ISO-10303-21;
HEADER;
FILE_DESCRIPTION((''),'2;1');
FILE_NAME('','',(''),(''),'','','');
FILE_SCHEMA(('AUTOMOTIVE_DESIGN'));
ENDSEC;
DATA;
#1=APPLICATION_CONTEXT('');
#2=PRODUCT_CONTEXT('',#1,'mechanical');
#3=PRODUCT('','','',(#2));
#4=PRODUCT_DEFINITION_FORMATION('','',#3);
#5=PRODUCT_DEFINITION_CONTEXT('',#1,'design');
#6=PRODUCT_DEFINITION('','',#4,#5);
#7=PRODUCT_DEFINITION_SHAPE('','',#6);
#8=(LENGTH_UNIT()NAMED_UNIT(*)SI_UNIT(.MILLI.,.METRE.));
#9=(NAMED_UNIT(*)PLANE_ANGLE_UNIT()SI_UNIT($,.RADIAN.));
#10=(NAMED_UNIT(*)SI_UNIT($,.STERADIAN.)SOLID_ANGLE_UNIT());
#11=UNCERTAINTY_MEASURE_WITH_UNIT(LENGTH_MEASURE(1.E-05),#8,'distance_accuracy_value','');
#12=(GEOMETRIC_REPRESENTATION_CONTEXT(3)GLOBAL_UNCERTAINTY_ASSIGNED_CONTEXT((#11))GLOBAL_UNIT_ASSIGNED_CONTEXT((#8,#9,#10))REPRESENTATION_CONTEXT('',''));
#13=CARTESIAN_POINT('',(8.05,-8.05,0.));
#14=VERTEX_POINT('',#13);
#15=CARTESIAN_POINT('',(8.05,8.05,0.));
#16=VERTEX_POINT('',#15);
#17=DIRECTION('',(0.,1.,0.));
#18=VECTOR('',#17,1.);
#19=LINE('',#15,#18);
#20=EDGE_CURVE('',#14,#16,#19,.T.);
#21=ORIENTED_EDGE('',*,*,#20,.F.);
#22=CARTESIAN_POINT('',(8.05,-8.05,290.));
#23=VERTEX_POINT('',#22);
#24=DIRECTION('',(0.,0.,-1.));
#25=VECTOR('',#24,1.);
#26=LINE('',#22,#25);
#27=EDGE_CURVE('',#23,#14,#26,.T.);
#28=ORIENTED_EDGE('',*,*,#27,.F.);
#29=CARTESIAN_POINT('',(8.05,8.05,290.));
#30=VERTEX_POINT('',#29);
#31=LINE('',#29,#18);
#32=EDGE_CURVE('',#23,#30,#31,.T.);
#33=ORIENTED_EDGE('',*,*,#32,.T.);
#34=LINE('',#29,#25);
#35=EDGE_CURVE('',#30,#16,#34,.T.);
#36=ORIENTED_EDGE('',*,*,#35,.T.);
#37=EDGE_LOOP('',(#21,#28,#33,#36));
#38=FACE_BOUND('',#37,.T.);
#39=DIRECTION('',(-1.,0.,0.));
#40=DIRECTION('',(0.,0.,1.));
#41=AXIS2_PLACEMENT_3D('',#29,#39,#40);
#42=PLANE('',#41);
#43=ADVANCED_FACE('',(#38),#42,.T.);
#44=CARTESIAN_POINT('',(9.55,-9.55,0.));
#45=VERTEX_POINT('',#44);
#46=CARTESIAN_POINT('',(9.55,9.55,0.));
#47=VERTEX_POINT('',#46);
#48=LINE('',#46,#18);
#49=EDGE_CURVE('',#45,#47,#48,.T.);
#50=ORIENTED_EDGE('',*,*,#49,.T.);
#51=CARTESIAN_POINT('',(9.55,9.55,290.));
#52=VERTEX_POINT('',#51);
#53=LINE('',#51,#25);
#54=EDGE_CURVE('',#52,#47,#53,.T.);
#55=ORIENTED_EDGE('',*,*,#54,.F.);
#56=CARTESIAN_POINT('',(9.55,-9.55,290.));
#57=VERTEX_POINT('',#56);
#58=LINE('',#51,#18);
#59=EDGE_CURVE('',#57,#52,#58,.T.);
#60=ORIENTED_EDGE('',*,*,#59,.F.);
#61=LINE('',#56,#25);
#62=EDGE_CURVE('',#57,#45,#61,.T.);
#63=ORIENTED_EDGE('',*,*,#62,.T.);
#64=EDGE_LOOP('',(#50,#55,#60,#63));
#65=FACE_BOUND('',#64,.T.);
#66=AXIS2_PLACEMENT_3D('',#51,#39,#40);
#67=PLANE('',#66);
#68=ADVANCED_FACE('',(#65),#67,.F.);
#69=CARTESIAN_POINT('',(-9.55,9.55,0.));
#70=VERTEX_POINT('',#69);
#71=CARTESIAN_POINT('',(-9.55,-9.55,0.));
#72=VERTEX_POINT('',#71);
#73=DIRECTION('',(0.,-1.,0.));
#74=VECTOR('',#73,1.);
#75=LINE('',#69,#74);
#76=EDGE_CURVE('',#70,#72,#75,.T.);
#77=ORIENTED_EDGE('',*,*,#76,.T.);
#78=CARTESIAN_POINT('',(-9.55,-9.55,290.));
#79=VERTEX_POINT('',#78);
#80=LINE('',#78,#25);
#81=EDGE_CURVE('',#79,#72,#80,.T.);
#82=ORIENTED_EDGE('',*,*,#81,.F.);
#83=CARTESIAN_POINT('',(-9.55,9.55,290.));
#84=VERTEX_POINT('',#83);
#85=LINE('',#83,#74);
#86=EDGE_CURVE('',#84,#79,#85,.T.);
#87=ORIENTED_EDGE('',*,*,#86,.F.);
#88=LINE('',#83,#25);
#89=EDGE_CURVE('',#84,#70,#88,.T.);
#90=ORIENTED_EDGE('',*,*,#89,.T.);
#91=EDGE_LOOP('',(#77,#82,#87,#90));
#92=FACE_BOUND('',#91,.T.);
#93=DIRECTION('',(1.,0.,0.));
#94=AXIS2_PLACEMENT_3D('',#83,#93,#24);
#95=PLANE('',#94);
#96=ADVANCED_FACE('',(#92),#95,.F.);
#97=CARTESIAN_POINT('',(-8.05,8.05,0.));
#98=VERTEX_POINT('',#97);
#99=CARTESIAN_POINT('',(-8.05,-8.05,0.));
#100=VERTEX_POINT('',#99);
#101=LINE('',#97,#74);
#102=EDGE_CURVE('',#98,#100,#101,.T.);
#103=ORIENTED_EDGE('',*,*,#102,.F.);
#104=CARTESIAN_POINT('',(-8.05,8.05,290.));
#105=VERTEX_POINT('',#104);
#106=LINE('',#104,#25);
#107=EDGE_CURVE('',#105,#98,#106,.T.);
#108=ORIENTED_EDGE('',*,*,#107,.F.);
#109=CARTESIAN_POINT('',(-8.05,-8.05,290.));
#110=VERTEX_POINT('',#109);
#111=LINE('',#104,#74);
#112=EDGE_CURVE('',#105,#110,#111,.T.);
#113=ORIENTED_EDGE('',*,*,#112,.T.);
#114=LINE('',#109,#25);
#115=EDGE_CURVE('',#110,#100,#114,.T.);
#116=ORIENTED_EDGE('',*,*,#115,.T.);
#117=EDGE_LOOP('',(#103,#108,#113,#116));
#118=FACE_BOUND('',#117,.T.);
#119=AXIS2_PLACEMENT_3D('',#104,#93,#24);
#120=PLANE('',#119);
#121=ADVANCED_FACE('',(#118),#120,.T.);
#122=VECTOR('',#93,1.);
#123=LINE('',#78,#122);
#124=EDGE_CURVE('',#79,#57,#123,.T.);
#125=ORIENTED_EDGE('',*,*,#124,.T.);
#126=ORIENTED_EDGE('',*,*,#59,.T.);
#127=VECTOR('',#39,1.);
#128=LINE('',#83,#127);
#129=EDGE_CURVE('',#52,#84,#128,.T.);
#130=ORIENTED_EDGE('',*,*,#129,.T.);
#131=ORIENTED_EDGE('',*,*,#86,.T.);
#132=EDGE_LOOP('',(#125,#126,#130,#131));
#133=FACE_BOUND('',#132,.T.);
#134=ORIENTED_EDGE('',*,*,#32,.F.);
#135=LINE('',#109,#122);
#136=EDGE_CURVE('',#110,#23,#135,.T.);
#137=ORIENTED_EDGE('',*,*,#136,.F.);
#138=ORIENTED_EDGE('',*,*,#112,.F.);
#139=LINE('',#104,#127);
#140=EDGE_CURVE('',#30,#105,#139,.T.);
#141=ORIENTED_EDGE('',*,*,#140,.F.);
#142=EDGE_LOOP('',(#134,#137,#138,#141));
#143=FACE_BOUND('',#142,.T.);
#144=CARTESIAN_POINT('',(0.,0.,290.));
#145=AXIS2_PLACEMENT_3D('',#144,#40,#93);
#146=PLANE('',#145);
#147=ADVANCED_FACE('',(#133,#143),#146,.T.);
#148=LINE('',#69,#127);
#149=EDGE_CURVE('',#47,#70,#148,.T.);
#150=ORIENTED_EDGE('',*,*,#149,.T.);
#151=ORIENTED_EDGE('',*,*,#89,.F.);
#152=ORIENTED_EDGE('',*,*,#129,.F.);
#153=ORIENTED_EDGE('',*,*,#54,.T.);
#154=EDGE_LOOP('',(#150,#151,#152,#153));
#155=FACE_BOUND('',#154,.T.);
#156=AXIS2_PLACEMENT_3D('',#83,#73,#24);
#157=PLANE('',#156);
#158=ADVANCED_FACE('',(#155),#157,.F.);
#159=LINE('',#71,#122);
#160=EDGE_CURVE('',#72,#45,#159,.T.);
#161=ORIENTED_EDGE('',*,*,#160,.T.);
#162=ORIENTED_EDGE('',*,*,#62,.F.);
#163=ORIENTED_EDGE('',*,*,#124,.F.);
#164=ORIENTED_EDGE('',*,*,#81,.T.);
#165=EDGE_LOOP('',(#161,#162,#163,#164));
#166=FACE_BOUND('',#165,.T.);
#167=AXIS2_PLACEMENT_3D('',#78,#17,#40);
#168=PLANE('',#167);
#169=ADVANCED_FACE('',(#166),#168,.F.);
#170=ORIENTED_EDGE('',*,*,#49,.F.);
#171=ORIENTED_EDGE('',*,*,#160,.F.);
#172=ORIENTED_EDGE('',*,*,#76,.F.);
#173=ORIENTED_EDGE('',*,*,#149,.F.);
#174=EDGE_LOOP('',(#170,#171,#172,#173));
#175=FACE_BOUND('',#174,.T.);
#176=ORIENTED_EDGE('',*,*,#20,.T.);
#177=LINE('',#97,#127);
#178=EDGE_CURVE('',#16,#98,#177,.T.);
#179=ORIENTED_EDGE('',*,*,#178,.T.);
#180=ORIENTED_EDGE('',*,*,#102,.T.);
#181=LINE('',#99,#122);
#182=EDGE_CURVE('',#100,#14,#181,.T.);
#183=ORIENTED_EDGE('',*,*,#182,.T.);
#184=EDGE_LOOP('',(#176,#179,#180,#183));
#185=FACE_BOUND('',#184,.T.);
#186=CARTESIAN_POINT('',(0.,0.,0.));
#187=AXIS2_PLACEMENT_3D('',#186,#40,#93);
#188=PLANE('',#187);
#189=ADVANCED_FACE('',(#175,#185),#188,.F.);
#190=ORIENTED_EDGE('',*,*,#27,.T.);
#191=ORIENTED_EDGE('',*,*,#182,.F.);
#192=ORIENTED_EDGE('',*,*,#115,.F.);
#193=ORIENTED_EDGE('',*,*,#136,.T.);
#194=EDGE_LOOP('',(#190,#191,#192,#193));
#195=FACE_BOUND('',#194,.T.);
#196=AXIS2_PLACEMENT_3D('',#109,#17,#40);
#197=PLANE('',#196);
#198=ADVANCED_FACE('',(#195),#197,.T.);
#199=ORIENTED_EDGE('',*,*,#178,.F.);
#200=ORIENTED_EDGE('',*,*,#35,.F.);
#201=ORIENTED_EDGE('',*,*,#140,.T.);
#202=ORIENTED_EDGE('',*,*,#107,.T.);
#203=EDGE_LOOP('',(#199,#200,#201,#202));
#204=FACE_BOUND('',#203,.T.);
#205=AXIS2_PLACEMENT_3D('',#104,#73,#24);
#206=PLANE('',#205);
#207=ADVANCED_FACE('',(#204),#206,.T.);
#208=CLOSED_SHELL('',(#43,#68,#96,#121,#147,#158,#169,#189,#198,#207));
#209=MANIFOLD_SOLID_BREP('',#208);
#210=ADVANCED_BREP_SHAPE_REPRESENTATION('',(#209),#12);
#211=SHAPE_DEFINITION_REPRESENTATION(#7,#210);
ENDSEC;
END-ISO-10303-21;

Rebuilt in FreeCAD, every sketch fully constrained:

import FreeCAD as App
import Part
import Sketcher


def add_polygon(sketch, points):
    """Adds a closed chain of lines whose ends are joined by coincident constraints."""
    first, n = sketch.GeometryCount, len(points)
    for a, b in zip(points, points[1:] + points[:1]):
        sketch.addGeometry(Part.LineSegment(App.Vector(*a, 0), App.Vector(*b, 0)), False)
    for i in range(n):
        sketch.addConstraint(Sketcher.Constraint("Coincident", first + i, 2, first + (i + 1) % n, 1))

doc = App.newDocument("Part")
body = doc.addObject("PartDesign::Body", "Body")

# Sketch on XY plane
sketch1 = doc.addObject("Sketcher::SketchObject", "Sketch")
body.addObject(sketch1)
sketch1.AttachmentSupport = (doc.XY_Plane, [""])
sketch1.MapMode = "FlatFace"
add_polygon(sketch1, [(-10, 10), (-10, -10), (10, -10), (10, 10)])  # lines 0-3
add_polygon(sketch1, [(8, -8), (-8, -8), (-8, 8), (8, 8)])  # lines 4-7
sketch1.addConstraint(Sketcher.Constraint("Vertical", 0))
sketch1.addConstraint(Sketcher.Constraint("Horizontal", 1))
sketch1.addConstraint(Sketcher.Constraint("Vertical", 2))
sketch1.addConstraint(Sketcher.Constraint("Horizontal", 3))
sketch1.addConstraint(Sketcher.Constraint("Horizontal", 4))
sketch1.addConstraint(Sketcher.Constraint("Vertical", 5))
sketch1.addConstraint(Sketcher.Constraint("Horizontal", 6))
sketch1.addConstraint(Sketcher.Constraint("Vertical", 7))
sketch1.addConstraint(Sketcher.Constraint("Symmetric", 0, 2, 2, 2, -1, 1))
sketch1.addConstraint(Sketcher.Constraint("Symmetric", 4, 2, 6, 2, -1, 1))
sketch1.addConstraint(Sketcher.Constraint("Equal", 3, 0))
sketch1.addConstraint(Sketcher.Constraint("Equal", 6, 5))
sketch1.addConstraint(Sketcher.Constraint("DistanceX", 1, 1, 1, 2, 19.1))
sketch1.addConstraint(Sketcher.Constraint("DistanceX", 4, 2, 4, 1, 16.1))
pad1 = doc.addObject("PartDesign::Pad", "Pad")
body.addObject(pad1)
pad1.Profile = sketch1
pad1.Length = 290

doc.recompute()
